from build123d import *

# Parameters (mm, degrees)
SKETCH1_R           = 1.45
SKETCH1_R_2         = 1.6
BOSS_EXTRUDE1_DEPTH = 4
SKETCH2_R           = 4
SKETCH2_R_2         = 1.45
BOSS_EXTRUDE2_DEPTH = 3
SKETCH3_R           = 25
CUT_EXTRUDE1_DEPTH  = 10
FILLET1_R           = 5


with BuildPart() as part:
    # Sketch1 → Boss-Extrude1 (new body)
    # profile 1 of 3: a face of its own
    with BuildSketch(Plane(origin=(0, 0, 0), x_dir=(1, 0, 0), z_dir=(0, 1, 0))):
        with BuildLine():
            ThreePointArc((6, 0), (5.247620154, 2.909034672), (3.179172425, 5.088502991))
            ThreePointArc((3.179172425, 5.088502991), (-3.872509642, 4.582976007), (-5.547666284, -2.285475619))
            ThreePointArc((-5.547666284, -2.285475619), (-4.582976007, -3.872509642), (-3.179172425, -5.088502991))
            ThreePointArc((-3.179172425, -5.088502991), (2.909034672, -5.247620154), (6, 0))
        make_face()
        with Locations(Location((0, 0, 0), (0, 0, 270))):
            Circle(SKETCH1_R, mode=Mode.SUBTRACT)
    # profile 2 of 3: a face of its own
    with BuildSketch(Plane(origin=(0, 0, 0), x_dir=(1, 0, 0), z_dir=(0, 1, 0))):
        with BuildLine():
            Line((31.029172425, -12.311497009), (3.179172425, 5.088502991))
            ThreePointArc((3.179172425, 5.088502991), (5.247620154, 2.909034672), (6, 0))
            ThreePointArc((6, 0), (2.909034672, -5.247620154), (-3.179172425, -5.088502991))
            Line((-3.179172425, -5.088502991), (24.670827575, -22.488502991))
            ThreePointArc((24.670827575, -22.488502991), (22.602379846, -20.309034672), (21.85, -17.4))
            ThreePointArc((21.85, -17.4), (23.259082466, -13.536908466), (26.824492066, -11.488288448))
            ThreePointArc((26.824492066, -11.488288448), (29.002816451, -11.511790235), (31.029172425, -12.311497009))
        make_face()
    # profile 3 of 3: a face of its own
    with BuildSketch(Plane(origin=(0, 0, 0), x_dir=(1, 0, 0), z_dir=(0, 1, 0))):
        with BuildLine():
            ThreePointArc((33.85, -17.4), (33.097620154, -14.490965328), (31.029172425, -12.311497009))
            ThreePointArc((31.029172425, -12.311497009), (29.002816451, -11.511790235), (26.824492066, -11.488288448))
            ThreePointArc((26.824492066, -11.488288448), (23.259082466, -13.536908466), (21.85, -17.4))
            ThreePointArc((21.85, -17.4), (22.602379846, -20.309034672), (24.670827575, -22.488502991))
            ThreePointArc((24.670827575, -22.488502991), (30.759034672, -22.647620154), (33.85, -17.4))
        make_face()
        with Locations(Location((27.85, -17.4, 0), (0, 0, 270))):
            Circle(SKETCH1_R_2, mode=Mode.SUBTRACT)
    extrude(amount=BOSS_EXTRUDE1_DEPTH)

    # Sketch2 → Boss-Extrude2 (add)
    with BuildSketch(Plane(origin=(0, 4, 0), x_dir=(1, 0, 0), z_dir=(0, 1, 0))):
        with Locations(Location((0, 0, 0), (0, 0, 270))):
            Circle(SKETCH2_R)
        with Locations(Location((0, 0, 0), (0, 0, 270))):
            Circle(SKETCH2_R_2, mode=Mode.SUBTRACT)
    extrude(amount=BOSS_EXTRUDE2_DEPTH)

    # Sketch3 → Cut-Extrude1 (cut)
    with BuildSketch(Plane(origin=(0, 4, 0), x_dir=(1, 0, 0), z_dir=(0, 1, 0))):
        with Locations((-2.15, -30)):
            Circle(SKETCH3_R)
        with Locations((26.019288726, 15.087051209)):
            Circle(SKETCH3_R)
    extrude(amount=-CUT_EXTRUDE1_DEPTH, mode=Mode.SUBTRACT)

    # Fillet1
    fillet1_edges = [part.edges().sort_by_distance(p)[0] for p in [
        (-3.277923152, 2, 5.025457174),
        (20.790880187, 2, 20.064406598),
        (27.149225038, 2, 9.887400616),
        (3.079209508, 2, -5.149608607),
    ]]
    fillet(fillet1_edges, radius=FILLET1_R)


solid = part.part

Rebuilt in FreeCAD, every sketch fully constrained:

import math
import FreeCAD as App
import Part
import Sketcher
Q = App.Units.Quantity


def edges_at(feature, points):
    """Names of the edges that pass closest to the given points."""
    edges = feature.Shape.Edges
    near = lambda p: min(range(len(edges)), key=lambda i: edges[i].distToShape(Part.Vertex(*p))[0])
    return sorted({f"Edge{near(p) + 1}" for p in points})

doc = App.newDocument("Part")
body = doc.addObject("PartDesign::Body", "Body")

sketch1 = body.newObject("Sketcher::SketchObject", "Sketch")
sketch1.AttachmentSupport = (doc.getObject("XZ_Plane"), [""])
sketch1.MapMode = "FlatFace"
sketch1.addGeometry([
    Part.ArcOfCircle(Part.Circle(App.Vector(0, 0, 0), App.Vector(0, 0, 1), 6), math.radians(158), math.radians(302)),
    Part.ArcOfCircle(Part.Circle(App.Vector(0, 0, 0), App.Vector(0, 0, 1), 6), math.radians(122), math.radians(158)),
    Part.LineSegment(App.Vector(-3.2, 5.1, 0), App.Vector(24.7, 22.5, 0)),
    Part.ArcOfCircle(Part.Circle(App.Vector(27.9, 17.4, 0), App.Vector(0, 0, 1), 6), math.radians(0), math.radians(122)),
    Part.ArcOfCircle(Part.Circle(App.Vector(27.9, 17.4, 0), App.Vector(0, 0, 1), 6), math.radians(-58), math.radians(0)),
    Part.LineSegment(App.Vector(31, 12.3, 0), App.Vector(3.2, -5.1, 0)),
    Part.Circle(App.Vector(0, 0, 0), App.Vector(0, 0, 1), 1.4),
    Part.Circle(App.Vector(27.9, 17.4, 0), App.Vector(0, 0, 1), 1.6),
], False)
sketch1.addConstraint([
    Sketcher.Constraint("Tangent", 0, 1, 1, 2),
    Sketcher.Constraint("Tangent", 1, 1, 2, 1),
    Sketcher.Constraint("Tangent", 2, 2, 3, 2),
    Sketcher.Constraint("Tangent", 3, 1, 4, 2),
    Sketcher.Constraint("Tangent", 4, 1, 5, 1),
    Sketcher.Constraint("Tangent", 5, 2, 0, 2),
    Sketcher.Constraint("Coincident", 0, 3, -1, 1),
    Sketcher.Constraint("Coincident", 6, 3, -1, 1),
    Sketcher.Constraint("Coincident", 7, 3, 3, 3),
    Sketcher.Constraint("Equal", 0, 1),
    Sketcher.Constraint("Equal", 1, 3),
    Sketcher.Constraint("Equal", 3, 4),
    Sketcher.Constraint("Horizontal", 7, 3, 3, 1),
    Sketcher.Constraint("Radius", 0, Q("6 mm")),
    Sketcher.Constraint("Diameter", 6, Q("2.9 mm")),
    Sketcher.Constraint("Diameter", 7, Q("3.2 mm")),
    Sketcher.Constraint("DistanceY", -1, 1, 3, 3, Q("17.4 mm")),
    Sketcher.Constraint("DistanceX", -1, 1, 3, 3, Q("27.85 mm")),
    Sketcher.Constraint("DistanceX", 0, 1, 5, 2, Q("8.726839 mm")),
])
pad1 = body.newObject("PartDesign::Pad", "Pad")
pad1.Profile = sketch1
pad1.Length = 4
pad1.Reversed = True

sketch2 = body.newObject("Sketcher::SketchObject", "Sketch001")
sketch2.AttachmentSupport = (doc.getObject("XZ_Plane"), [""])
sketch2.MapMode = "FlatFace"
sketch2.AttachmentOffset = App.Placement(App.Vector(0, 0, -4), App.Rotation())
sketch2.addGeometry([
    Part.Circle(App.Vector(0, 0, 0), App.Vector(0, 0, 1), 4),
    Part.Circle(App.Vector(0, 0, 0), App.Vector(0, 0, 1), 1.4),
], False)
sketch2.addConstraint([
    Sketcher.Constraint("Coincident", 0, 3, -1, 1),
    Sketcher.Constraint("Coincident", 1, 3, -1, 1),
    Sketcher.Constraint("Diameter", 0, Q("8 mm")),
    Sketcher.Constraint("Diameter", 1, Q("2.9 mm")),
])
pad2 = body.newObject("PartDesign::Pad", "Pad001")
pad2.Profile = sketch2
pad2.Length = 3
pad2.Reversed = True

sketch3 = body.newObject("Sketcher::SketchObject", "Sketch002")
sketch3.AttachmentSupport = (doc.getObject("XZ_Plane"), [""])
sketch3.MapMode = "FlatFace"
sketch3.AttachmentOffset = App.Placement(App.Vector(0, 0, -4), App.Rotation())
sketch3.addGeometry([
    Part.Circle(App.Vector(-2, 30, 0), App.Vector(0, 0, 1), 25),
    Part.Circle(App.Vector(26, -15, 0), App.Vector(0, 0, 1), 25),
], False)
sketch3.addConstraint([
    Sketcher.Constraint("Equal", 0, 1),
    Sketcher.Constraint("Diameter", 0, Q("50 mm")),
    Sketcher.Constraint("DistanceY", -1, 1, 0, 3, Q("30 mm")),
    Sketcher.Constraint("DistanceX", 0, 3, -1, 1, Q("2.15 mm")),
    Sketcher.Constraint("DistanceX", -1, 1, 1, 3, Q("26.019289 mm")),
    Sketcher.Constraint("DistanceY", 1, 3, -1, 1, Q("15.087051 mm")),
])
pocket1 = body.newObject("PartDesign::Pocket", "Pocket")
pocket1.Profile = sketch3
pocket1.Length = 10
pocket1.Reversed = True
doc.recompute()

fillet = body.newObject("PartDesign::Fillet", "Fillet")
fillet.Base = (pocket1, edges_at(pocket1, [
    (-3.278, 2, 5.025),
    (20.791, 2, 20.064),
    (27.149, 2, 9.887),
    (3.079, 2, -5.15),
]))
fillet.Radius = 5

doc.recompute()
